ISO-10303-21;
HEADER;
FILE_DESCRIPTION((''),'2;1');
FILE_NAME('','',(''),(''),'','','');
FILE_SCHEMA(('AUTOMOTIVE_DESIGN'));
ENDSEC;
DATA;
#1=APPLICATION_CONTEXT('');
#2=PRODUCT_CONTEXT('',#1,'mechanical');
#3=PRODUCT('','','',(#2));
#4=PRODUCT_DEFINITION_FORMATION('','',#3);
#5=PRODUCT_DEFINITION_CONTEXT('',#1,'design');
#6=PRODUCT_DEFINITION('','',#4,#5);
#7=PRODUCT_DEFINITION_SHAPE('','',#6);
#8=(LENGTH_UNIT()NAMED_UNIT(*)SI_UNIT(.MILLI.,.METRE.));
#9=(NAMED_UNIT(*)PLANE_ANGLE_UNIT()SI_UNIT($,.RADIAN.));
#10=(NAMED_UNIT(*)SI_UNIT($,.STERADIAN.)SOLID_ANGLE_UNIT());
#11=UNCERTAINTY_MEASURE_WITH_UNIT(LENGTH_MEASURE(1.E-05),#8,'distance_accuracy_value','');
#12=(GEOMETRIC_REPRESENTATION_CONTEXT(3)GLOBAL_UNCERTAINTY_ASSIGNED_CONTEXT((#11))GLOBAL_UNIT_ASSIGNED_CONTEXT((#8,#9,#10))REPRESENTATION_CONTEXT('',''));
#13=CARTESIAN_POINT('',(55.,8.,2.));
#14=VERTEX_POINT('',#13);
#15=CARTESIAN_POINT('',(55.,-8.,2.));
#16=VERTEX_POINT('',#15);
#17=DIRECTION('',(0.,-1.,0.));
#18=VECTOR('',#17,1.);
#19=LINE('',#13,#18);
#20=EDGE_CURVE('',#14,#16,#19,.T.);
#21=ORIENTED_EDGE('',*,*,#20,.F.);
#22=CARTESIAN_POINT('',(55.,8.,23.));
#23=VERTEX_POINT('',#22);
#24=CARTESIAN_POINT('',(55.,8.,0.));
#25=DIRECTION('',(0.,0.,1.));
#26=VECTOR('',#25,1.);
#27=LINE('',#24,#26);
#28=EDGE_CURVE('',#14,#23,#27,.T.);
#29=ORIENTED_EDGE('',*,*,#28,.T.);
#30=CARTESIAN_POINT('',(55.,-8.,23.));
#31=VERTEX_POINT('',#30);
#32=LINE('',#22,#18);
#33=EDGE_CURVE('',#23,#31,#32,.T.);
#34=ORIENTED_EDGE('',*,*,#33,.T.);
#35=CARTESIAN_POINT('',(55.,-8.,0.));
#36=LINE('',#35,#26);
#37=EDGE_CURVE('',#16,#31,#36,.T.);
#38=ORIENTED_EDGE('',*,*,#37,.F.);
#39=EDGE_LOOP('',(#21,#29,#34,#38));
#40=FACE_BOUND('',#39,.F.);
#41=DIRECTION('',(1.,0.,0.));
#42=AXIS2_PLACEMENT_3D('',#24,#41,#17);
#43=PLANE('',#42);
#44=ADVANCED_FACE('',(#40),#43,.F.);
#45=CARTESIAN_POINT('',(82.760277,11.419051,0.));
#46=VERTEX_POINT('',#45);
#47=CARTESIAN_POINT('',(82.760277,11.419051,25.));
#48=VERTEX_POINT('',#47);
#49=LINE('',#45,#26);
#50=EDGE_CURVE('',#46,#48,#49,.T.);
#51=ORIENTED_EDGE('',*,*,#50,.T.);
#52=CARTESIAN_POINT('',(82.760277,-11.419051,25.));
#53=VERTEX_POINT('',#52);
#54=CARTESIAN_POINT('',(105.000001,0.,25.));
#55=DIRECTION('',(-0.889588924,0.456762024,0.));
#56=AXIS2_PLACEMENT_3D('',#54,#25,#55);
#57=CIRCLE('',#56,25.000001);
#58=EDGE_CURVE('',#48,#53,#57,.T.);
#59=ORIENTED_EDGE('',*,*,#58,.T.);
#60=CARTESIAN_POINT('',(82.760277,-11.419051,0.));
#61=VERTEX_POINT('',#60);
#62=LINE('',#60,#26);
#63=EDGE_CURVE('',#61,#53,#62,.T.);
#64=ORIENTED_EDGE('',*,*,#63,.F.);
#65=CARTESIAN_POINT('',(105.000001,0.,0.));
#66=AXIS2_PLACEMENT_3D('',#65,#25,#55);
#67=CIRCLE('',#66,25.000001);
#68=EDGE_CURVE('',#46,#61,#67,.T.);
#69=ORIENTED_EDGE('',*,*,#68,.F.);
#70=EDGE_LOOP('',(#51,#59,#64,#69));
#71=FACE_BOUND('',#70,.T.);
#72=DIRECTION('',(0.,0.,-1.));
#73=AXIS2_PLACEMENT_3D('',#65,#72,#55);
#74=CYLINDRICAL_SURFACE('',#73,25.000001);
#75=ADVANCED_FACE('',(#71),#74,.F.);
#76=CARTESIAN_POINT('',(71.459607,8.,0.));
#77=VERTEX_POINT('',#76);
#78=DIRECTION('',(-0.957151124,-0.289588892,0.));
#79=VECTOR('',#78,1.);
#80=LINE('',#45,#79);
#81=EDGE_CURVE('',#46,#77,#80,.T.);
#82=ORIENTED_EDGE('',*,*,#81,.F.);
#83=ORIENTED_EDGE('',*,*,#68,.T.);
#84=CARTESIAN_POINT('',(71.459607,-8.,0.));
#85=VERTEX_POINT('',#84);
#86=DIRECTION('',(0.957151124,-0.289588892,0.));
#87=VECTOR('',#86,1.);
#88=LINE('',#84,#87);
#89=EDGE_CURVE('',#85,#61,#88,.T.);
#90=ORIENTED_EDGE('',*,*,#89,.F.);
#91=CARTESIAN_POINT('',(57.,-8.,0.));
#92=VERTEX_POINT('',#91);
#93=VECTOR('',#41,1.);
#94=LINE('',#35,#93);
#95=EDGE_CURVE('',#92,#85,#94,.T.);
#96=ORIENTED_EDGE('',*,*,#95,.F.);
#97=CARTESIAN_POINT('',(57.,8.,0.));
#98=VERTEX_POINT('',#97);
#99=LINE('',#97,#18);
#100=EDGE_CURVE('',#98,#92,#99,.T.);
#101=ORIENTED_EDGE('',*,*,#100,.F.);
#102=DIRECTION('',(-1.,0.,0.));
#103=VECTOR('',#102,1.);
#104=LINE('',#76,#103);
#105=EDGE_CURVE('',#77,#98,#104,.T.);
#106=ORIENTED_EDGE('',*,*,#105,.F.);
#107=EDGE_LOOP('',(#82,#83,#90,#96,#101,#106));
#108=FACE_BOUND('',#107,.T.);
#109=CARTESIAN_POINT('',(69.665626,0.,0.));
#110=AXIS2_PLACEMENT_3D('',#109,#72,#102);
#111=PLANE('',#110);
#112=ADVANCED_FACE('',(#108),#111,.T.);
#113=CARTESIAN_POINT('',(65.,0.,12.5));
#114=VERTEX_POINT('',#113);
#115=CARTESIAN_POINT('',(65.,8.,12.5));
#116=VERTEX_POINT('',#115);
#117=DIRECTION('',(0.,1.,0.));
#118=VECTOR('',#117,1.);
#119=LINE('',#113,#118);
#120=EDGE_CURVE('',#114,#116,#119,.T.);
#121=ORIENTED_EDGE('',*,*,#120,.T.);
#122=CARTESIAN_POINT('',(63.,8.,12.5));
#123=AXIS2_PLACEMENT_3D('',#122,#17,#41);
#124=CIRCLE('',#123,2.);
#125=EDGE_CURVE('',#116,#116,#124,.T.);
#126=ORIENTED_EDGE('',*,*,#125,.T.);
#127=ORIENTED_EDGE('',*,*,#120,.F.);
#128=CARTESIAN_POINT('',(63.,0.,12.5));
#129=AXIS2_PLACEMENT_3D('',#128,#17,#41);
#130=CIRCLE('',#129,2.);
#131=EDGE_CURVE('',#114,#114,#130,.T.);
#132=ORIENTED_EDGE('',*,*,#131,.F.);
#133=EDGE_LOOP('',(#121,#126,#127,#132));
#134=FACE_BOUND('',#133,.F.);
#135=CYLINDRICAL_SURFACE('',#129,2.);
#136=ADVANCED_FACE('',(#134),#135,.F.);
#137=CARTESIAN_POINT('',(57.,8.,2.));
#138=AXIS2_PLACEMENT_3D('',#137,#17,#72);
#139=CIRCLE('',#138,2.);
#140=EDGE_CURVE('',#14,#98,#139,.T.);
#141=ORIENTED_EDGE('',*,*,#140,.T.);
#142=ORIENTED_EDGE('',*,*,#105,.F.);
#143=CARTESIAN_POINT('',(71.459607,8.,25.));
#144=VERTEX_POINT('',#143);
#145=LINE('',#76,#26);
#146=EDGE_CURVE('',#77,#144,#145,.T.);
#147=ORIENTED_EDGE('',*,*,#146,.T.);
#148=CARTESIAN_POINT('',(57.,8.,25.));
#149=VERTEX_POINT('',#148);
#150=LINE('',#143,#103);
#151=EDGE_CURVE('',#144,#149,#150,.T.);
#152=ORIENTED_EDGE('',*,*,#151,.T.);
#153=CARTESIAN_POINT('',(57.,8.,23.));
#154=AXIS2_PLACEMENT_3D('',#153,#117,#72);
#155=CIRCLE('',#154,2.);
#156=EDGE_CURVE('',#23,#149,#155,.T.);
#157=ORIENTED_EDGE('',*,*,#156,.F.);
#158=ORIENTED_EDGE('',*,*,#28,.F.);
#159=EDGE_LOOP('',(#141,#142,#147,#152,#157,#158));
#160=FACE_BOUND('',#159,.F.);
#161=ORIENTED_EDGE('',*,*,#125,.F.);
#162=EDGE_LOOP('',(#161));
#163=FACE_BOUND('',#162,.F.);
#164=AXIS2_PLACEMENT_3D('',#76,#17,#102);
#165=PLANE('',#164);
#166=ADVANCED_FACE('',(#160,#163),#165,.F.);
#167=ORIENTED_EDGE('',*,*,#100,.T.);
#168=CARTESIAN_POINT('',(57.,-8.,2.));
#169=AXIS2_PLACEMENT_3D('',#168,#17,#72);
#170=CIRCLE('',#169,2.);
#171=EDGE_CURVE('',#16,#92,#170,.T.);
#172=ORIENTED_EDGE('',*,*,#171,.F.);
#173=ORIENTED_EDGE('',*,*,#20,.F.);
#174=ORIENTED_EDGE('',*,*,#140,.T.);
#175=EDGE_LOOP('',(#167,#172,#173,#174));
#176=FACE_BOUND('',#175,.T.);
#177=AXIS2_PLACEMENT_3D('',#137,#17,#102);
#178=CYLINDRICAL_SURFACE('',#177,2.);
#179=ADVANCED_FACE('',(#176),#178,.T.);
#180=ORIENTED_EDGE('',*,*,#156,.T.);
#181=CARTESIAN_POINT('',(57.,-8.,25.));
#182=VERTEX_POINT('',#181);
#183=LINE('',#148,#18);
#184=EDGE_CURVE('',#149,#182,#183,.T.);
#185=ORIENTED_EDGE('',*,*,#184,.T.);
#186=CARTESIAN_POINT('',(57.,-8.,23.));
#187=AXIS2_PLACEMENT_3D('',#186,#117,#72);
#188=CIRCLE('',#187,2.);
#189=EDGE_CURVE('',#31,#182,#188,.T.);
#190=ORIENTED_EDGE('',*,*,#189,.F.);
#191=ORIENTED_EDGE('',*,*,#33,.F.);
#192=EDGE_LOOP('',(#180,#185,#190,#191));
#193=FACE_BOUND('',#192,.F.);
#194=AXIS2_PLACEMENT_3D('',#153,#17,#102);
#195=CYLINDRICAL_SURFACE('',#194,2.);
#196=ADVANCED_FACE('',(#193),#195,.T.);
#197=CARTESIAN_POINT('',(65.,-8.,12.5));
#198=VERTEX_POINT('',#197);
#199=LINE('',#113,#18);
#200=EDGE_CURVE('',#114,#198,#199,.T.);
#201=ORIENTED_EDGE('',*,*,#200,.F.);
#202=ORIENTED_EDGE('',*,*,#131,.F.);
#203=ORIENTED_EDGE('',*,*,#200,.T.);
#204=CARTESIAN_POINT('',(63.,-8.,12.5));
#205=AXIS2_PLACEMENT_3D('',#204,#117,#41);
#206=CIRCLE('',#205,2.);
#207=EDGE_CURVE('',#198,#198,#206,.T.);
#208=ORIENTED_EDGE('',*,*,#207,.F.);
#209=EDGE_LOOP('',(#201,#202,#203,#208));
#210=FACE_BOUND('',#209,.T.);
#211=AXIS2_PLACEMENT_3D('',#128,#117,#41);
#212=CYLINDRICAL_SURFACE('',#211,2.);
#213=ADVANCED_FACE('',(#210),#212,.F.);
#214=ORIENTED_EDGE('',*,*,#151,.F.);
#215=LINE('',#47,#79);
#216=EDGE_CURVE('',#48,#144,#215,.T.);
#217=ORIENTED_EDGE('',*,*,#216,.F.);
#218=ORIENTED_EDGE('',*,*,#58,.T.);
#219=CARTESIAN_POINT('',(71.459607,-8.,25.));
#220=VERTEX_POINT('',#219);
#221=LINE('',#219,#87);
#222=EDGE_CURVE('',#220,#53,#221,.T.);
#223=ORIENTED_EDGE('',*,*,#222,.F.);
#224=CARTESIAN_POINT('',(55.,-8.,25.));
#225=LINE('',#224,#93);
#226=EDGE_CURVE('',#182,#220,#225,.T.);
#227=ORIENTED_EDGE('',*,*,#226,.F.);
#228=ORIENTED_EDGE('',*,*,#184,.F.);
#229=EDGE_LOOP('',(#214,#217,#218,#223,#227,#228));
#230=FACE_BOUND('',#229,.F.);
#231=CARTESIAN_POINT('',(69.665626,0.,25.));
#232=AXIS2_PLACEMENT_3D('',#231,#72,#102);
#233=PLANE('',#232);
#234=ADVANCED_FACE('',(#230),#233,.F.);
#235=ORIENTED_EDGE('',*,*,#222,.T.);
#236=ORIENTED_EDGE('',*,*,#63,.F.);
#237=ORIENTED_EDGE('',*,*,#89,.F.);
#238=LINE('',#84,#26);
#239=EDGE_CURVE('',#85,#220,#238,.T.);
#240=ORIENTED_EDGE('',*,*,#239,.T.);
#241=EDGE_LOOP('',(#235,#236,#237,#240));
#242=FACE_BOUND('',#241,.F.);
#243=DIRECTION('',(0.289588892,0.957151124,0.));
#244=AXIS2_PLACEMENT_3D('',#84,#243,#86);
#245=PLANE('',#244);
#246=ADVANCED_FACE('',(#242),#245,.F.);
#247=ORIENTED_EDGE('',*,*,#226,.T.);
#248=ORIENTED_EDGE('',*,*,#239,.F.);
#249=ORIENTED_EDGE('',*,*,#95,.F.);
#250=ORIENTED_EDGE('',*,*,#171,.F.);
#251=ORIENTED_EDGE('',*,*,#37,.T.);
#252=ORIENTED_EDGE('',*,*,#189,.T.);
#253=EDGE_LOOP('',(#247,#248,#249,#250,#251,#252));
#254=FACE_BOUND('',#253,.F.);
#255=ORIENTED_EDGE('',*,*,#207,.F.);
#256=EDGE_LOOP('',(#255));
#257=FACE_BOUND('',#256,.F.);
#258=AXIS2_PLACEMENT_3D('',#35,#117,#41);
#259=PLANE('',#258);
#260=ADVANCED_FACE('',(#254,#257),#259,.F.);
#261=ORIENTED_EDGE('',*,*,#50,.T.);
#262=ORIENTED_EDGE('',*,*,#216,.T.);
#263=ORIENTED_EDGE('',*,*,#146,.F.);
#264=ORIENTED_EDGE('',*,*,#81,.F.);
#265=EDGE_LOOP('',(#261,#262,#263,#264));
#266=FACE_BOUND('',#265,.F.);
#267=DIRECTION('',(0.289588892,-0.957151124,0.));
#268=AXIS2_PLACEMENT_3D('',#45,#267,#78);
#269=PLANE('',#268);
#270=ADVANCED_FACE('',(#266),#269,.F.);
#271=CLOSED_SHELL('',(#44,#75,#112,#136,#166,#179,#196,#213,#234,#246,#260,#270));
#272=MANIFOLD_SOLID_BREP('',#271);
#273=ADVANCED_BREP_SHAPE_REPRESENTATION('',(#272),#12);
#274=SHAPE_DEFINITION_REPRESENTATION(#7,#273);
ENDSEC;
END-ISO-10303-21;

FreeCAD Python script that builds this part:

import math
import FreeCAD as App
import Part
import Sketcher
from FreeCAD import Vector
Q = App.Units.Quantity


def edges_at(feature, points):
    """Names of the edges that pass closest to the given points."""
    edges = feature.Shape.Edges
    near = lambda p: min(range(len(edges)), key=lambda i: edges[i].distToShape(Part.Vertex(*p))[0])
    return sorted({f"Edge{near(p) + 1}" for p in points})

doc = App.newDocument("Part")
body = doc.addObject("PartDesign::Body", "Body")

sketch1 = body.newObject("Sketcher::SketchObject", "Sketch")
sketch1.AttachmentSupport = (doc.getObject("XY_Plane"), [""])
sketch1.MapMode = "FlatFace"
sketch1.addGeometry(Part.ArcOfCircle(Part.Circle(Vector(15, 0, 0), Vector(0, 0, 1), 25), math.radians(153), math.radians(207)), False)
sketch1.addGeometry(Part.LineSegment(Vector(-7, 11, 0), Vector(-19, 8, 0)), False)
sketch1.addGeometry(Part.LineSegment(Vector(-19, 8, 0), Vector(-35, 8, 0)), False)
sketch1.addGeometry(Part.LineSegment(Vector(-35, 8, 0), Vector(-35, -8, 0)), False)
sketch1.addGeometry(Part.LineSegment(Vector(-35, -8, 0), Vector(-19, -8, 0)), False)
sketch1.addGeometry(Part.LineSegment(Vector(-19, -8, 0), Vector(-7, -11, 0)), False)
sketch1.addConstraint(Sketcher.Constraint("Coincident", 0, 1, 1, 1))
sketch1.addConstraint(Sketcher.Constraint("Coincident", 1, 2, 2, 1))
sketch1.addConstraint(Sketcher.Constraint("Coincident", 2, 2, 3, 1))
sketch1.addConstraint(Sketcher.Constraint("Coincident", 3, 2, 4, 1))
sketch1.addConstraint(Sketcher.Constraint("Coincident", 4, 2, 5, 1))
sketch1.addConstraint(Sketcher.Constraint("Coincident", 5, 2, 0, 2))
sketch1.addConstraint(Sketcher.Constraint("Horizontal", 2))
sketch1.addConstraint(Sketcher.Constraint("Vertical", 3))
sketch1.addConstraint(Sketcher.Constraint("Horizontal", 4))
sketch1.addConstraint(Sketcher.Constraint("Symmetric", 1, 2, 4, 2, -1))
sketch1.addConstraint(Sketcher.Constraint("Symmetric", 0, 1, 5, 2, -1))
sketch1.addConstraint(Sketcher.Constraint("Radius", 0, Q("25.000001 mm")))
sketch1.addConstraint(Sketcher.Constraint("DistanceY", 3, 2, 3, 1, Q("16 mm")))
sketch1.addConstraint(Sketcher.Constraint("DistanceX", -1, 1, 0, 3, Q("15.000001 mm")))
sketch1.addConstraint(Sketcher.Constraint("DistanceX", 2, 2, -1, 1, Q("35 mm")))
sketch1.addConstraint(Sketcher.Constraint("Distance", 1, Q("11.806568 mm")))
sketch1.addConstraint(Sketcher.Constraint("DistanceX", 2, 2, 2, 1, Q("16.459607 mm")))
pad1 = body.newObject("PartDesign::Pad", "Pad")
pad1.Profile = sketch1
pad1.Length = 25
doc.recompute()

fillet = body.newObject("PartDesign::Fillet", "Fillet")
fillet.Base = (pad1, edges_at(pad1, [(-35, 0, 25), (-35, 0, 0)]))
fillet.Radius = 2

sketch2 = body.newObject("Sketcher::SketchObject", "Sketch001")
sketch2.AttachmentSupport = (doc.getObject("XZ_Plane"), [""])
sketch2.MapMode = "FlatFace"
sketch2.addGeometry(Part.Circle(Vector(-27, 12.5, 0), Vector(0, 0, 1), 2), False)
sketch2.addConstraint(Sketcher.Constraint("Diameter", 0, Q("4 mm")))
sketch2.addConstraint(Sketcher.Constraint("DistanceX", 0, 3, -1, 1, Q("27 mm")))
sketch2.addConstraint(Sketcher.Constraint("DistanceY", -1, 1, 0, 3, Q("12.5 mm")))
pocket1 = body.newObject("PartDesign::Pocket", "Pocket")
pocket1.Profile = sketch2
pocket1.Type = "ThroughAll"
pocket1.Midplane = True
body2 = doc.addObject("PartDesign::Body", "Body001")
doc.recompute()

body.Placement = App.Placement(Vector(90, 0, 0), App.Rotation(Vector(0, 0, 1), 0))
boolean = body2.newObject("PartDesign::Boolean", "Boolean")
boolean.Type = "Fuse"
boolean.addObjects([body])

doc.recompute()
